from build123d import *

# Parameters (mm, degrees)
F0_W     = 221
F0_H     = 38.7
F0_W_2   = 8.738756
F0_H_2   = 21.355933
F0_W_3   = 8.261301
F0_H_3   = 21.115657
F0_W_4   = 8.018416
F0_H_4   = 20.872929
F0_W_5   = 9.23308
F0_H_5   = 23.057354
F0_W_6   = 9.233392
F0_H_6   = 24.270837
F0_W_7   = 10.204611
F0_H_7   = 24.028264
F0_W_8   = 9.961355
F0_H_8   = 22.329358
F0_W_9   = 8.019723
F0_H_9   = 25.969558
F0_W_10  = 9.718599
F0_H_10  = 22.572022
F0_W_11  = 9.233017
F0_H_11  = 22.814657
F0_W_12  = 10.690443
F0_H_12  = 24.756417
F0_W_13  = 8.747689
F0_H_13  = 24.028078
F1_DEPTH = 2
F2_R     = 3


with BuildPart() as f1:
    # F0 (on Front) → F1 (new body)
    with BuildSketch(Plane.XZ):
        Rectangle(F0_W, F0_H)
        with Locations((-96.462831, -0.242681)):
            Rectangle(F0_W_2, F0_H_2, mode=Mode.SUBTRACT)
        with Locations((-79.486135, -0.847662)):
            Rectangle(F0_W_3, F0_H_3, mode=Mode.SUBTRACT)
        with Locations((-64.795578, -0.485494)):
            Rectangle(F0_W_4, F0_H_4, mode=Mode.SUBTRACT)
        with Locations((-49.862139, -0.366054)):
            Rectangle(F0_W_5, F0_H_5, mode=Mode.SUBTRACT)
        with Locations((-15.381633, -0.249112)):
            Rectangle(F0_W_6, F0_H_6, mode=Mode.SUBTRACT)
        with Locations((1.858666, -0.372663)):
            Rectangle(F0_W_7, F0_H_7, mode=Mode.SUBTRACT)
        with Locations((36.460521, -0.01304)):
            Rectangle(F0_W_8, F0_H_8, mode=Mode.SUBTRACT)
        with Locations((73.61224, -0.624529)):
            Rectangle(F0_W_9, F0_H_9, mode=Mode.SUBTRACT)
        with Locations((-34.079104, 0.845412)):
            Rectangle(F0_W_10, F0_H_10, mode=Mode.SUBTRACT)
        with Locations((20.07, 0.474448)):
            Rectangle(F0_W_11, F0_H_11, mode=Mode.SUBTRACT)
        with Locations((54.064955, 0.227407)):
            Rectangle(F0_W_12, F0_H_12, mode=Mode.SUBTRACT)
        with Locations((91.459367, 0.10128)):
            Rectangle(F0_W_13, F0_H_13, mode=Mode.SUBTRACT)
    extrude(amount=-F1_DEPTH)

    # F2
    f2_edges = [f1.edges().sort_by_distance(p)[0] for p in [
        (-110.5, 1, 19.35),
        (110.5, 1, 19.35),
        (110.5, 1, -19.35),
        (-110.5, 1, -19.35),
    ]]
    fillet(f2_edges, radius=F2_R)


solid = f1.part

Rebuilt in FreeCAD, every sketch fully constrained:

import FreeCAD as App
import Part
import Sketcher

V = App.Vector
Q = App.Units.Quantity


def edges_at(feature, points):
    """Names of the edges that pass closest to the given points."""
    edges = feature.Shape.Edges
    near = lambda p: min(range(len(edges)), key=lambda i: edges[i].distToShape(Part.Vertex(*p))[0])
    return sorted({f"Edge{near(p) + 1}" for p in points})


def add_polygon(sketch, points):
    """Adds a closed chain of lines whose ends are joined by coincident constraints."""
    first, n = sketch.GeometryCount, len(points)
    for a, b in zip(points, points[1:] + points[:1]):
        sketch.addGeometry(Part.LineSegment(App.Vector(*a, 0), App.Vector(*b, 0)), False)
    for i in range(n):
        sketch.addConstraint(Sketcher.Constraint("Coincident", first + i, 2, first + (i + 1) % n, 1))

doc = App.newDocument("Part")
body = doc.addObject("PartDesign::Body", "Body")

# Sketch on XZ plane
sketch1 = doc.addObject("Sketcher::SketchObject", "Sketch")
body.addObject(sketch1)
sketch1.AttachmentSupport = (doc.XZ_Plane, [""])
sketch1.MapMode = "FlatFace"
add_polygon(sketch1, [(-110, 19), (-110, -19), (110, -19), (110, 19)])  # lines 0-3
add_polygon(sketch1, [(-75, -11), (-84, -11), (-84, 10), (-75, 10)])  # lines 4-7
add_polygon(sketch1, [(78, -14), (70, -14), (70, 12), (78, 12)])  # lines 8-11
add_polygon(sketch1, [(-92, -11), (-101, -11), (-101, 10), (-92, 10)])  # lines 12-15
add_polygon(sketch1, [(-61, -11), (-69, -11), (-69, 10), (-61, 10)])  # lines 16-19
add_polygon(sketch1, [(-45, -12), (-54, -12), (-54, 11), (-45, 11)])  # lines 20-23
add_polygon(sketch1, [(-29, -10), (-39, -10), (-39, 12), (-29, 12)])  # lines 24-27
add_polygon(sketch1, [(-11, -12), (-20, -12), (-20, 12), (-11, 12)])  # lines 28-31
add_polygon(sketch1, [(7, -12), (-3, -12), (-3, 12), (7, 12)])  # lines 32-35
add_polygon(sketch1, [(25, -11), (15, -11), (15, 12), (25, 12)])  # lines 36-39
add_polygon(sketch1, [(41, -11), (31, -11), (31, 11), (41, 11)])  # lines 40-43
add_polygon(sketch1, [(59, -12), (49, -12), (49, 13), (59, 13)])  # lines 44-47
add_polygon(sketch1, [(96, -12), (87, -12), (87, 12), (96, 12)])  # lines 48-51
sketch1.addConstraint([
    Sketcher.Constraint("Vertical", 0),
    Sketcher.Constraint("Horizontal", 1),
    Sketcher.Constraint("Vertical", 2),
    Sketcher.Constraint("Horizontal", 3),
    Sketcher.Constraint("Horizontal", 4),
    Sketcher.Constraint("Vertical", 5),
    Sketcher.Constraint("Horizontal", 6),
    Sketcher.Constraint("Vertical", 7),
    Sketcher.Constraint("Horizontal", 8),
    Sketcher.Constraint("Vertical", 9),
    Sketcher.Constraint("Horizontal", 10),
    Sketcher.Constraint("Vertical", 11),
    Sketcher.Constraint("Horizontal", 12),
    Sketcher.Constraint("Vertical", 13),
    Sketcher.Constraint("Horizontal", 14),
    Sketcher.Constraint("Vertical", 15),
    Sketcher.Constraint("Horizontal", 16),
    Sketcher.Constraint("Vertical", 17),
    Sketcher.Constraint("Horizontal", 18),
    Sketcher.Constraint("Vertical", 19),
    Sketcher.Constraint("Horizontal", 20),
    Sketcher.Constraint("Vertical", 21),
    Sketcher.Constraint("Horizontal", 22),
    Sketcher.Constraint("Vertical", 23),
    Sketcher.Constraint("Horizontal", 24),
    Sketcher.Constraint("Vertical", 25),
    Sketcher.Constraint("Horizontal", 26),
    Sketcher.Constraint("Vertical", 27),
    Sketcher.Constraint("Horizontal", 28),
    Sketcher.Constraint("Vertical", 29),
    Sketcher.Constraint("Horizontal", 30),
    Sketcher.Constraint("Vertical", 31),
    Sketcher.Constraint("Horizontal", 32),
    Sketcher.Constraint("Vertical", 33),
    Sketcher.Constraint("Horizontal", 34),
    Sketcher.Constraint("Vertical", 35),
    Sketcher.Constraint("Horizontal", 36),
    Sketcher.Constraint("Vertical", 37),
    Sketcher.Constraint("Horizontal", 38),
    Sketcher.Constraint("Vertical", 39),
    Sketcher.Constraint("Horizontal", 40),
    Sketcher.Constraint("Vertical", 41),
    Sketcher.Constraint("Horizontal", 42),
    Sketcher.Constraint("Vertical", 43),
    Sketcher.Constraint("Horizontal", 44),
    Sketcher.Constraint("Vertical", 45),
    Sketcher.Constraint("Horizontal", 46),
    Sketcher.Constraint("Vertical", 47),
    Sketcher.Constraint("Horizontal", 48),
    Sketcher.Constraint("Vertical", 49),
    Sketcher.Constraint("Horizontal", 50),
    Sketcher.Constraint("Vertical", 51),
    Sketcher.Constraint("Symmetric", 0, 2, 2, 2, -1, 1),
    Sketcher.Constraint("DistanceX", 1, 1, 1, 2, Q("221 mm")),
    Sketcher.Constraint("DistanceY", 0, 2, 0, 1, Q("38.7 mm")),
    Sketcher.Constraint("DistanceX", 4, 2, 4, 1, Q("8.261301 mm")),
    Sketcher.Constraint("DistanceX", 24, 2, 24, 1, Q("9.718599 mm")),
    Sketcher.Constraint("DistanceX", 4, 2, 16, 2, Q("14.812 mm")),
    Sketcher.Constraint("DistanceY", 31, 2, 33, 2, Q("24.026 mm")),
    Sketcher.Constraint("DistanceX", 20, 2, 20, 1, Q("9.23308 mm")),
    Sketcher.Constraint("DistanceX", 28, 2, 28, 1, Q("9.233392 mm")),
    Sketcher.Constraint("DistanceX", 32, 2, 32, 1, Q("10.204611 mm")),
    Sketcher.Constraint("DistanceX", 48, 2, 48, 1, Q("8.747689 mm")),
    Sketcher.Constraint("DistanceY", 17, 1, 17, 2, Q("20.872929 mm")),
    Sketcher.Constraint("DistanceY", 49, 1, 49, 2, Q("24.028078 mm")),
    Sketcher.Constraint("DistanceX", -1, 1, 10, 2, Q("77.622101 mm")),
    Sketcher.Constraint("DistanceX", 22, 2, -1, 1, Q("45.245599 mm")),
    Sketcher.Constraint("DistanceY", 24, 2, -1, 1, Q("10.440599 mm")),
    Sketcher.Constraint("DistanceX", -1, 1, 42, 2, Q("41.441198 mm")),
    Sketcher.Constraint("DistanceY", 44, 2, -1, 1, Q("12.150802 mm")),
    Sketcher.Constraint("DistanceY", 20, 2, 18, 2, Q("21.845702 mm")),
    Sketcher.Constraint("DistanceY", 22, 2, 25, 2, Q("0.9688 mm")),
    Sketcher.Constraint("DistanceY", 28, 2, 23, 2, Q("0.4898 mm")),
    Sketcher.Constraint("DistanceY", 32, 2, 30, 2, Q("24.273101 mm")),
    Sketcher.Constraint("DistanceX", 29, 2, 34, 2, Q("26.9593 mm")),
    Sketcher.Constraint("DistanceX", 8, 2, 8, 1, Q("8.019723 mm")),
    Sketcher.Constraint("DistanceX", 12, 2, 12, 1, Q("8.738756 mm")),
    Sketcher.Constraint("DistanceX", 16, 2, 16, 1, Q("8.018416 mm")),
    Sketcher.Constraint("DistanceX", 36, 2, 36, 1, Q("9.233017 mm")),
    Sketcher.Constraint("DistanceX", 40, 2, 40, 1, Q("9.961355 mm")),
    Sketcher.Constraint("DistanceX", 44, 2, 44, 1, Q("10.690443 mm")),
    Sketcher.Constraint("DistanceY", 5, 1, 5, 2, Q("21.115657 mm")),
    Sketcher.Constraint("DistanceY", 9, 1, 9, 2, Q("25.969558 mm")),
    Sketcher.Constraint("DistanceY", 13, 1, 13, 2, Q("21.355933 mm")),
    Sketcher.Constraint("DistanceY", 21, 1, 21, 2, Q("23.057354 mm")),
    Sketcher.Constraint("DistanceY", 25, 1, 25, 2, Q("22.572022 mm")),
    Sketcher.Constraint("DistanceY", 29, 1, 29, 2, Q("24.270837 mm")),
    Sketcher.Constraint("DistanceY", 37, 1, 37, 2, Q("22.814657 mm")),
    Sketcher.Constraint("DistanceY", 41, 1, 41, 2, Q("22.329358 mm")),
    Sketcher.Constraint("DistanceY", 45, 1, 45, 2, Q("24.756417 mm")),
    Sketcher.Constraint("DistanceY", 4, 2, -1, 1, Q("11.405491 mm")),
    Sketcher.Constraint("DistanceY", -1, 1, 9, 2, Q("12.36025 mm")),
    Sketcher.Constraint("DistanceX", 12, 2, -1, 1, Q("100.832209 mm")),
    Sketcher.Constraint("DistanceX", 18, 2, -1, 1, Q("60.78637 mm")),
    Sketcher.Constraint("DistanceX", 28, 2, -1, 1, Q("19.998329 mm")),
    Sketcher.Constraint("DistanceX", -1, 1, 36, 2, Q("15.453492 mm")),
    Sketcher.Constraint("DistanceY", 36, 2, -1, 1, Q("10.93288 mm")),
    Sketcher.Constraint("DistanceY", 40, 2, -1, 1, Q("11.177719 mm")),
    Sketcher.Constraint("DistanceY", 48, 2, -1, 1, Q("11.912759 mm")),
    Sketcher.Constraint("DistanceX", -1, 1, 50, 2, Q("95.833212 mm")),
    Sketcher.Constraint("DistanceY", 5, 2, 13, 2, Q("0.725119 mm")),
    Sketcher.Constraint("DistanceX", 40, 2, 44, 2, Q("17.23989 mm")),
    Sketcher.Constraint("DistanceX", 24, 2, -1, 1, Q("38.938403 mm")),
])
pad1 = doc.addObject("PartDesign::Pad", "Pad")
body.addObject(pad1)
pad1.Profile = sketch1
pad1.Length = 2
pad1.Reversed = True
doc.recompute()

fillet = doc.addObject("PartDesign::Fillet", "Fillet")
body.addObject(fillet)
fillet.Base = (pad1, edges_at(pad1, [
    (-110.5, 1, 19.35),
    (110.5, 1, 19.35),
    (110.5, 1, -19.35),
    (-110.5, 1, -19.35),
]))
fillet.Radius = 3

doc.recompute()
